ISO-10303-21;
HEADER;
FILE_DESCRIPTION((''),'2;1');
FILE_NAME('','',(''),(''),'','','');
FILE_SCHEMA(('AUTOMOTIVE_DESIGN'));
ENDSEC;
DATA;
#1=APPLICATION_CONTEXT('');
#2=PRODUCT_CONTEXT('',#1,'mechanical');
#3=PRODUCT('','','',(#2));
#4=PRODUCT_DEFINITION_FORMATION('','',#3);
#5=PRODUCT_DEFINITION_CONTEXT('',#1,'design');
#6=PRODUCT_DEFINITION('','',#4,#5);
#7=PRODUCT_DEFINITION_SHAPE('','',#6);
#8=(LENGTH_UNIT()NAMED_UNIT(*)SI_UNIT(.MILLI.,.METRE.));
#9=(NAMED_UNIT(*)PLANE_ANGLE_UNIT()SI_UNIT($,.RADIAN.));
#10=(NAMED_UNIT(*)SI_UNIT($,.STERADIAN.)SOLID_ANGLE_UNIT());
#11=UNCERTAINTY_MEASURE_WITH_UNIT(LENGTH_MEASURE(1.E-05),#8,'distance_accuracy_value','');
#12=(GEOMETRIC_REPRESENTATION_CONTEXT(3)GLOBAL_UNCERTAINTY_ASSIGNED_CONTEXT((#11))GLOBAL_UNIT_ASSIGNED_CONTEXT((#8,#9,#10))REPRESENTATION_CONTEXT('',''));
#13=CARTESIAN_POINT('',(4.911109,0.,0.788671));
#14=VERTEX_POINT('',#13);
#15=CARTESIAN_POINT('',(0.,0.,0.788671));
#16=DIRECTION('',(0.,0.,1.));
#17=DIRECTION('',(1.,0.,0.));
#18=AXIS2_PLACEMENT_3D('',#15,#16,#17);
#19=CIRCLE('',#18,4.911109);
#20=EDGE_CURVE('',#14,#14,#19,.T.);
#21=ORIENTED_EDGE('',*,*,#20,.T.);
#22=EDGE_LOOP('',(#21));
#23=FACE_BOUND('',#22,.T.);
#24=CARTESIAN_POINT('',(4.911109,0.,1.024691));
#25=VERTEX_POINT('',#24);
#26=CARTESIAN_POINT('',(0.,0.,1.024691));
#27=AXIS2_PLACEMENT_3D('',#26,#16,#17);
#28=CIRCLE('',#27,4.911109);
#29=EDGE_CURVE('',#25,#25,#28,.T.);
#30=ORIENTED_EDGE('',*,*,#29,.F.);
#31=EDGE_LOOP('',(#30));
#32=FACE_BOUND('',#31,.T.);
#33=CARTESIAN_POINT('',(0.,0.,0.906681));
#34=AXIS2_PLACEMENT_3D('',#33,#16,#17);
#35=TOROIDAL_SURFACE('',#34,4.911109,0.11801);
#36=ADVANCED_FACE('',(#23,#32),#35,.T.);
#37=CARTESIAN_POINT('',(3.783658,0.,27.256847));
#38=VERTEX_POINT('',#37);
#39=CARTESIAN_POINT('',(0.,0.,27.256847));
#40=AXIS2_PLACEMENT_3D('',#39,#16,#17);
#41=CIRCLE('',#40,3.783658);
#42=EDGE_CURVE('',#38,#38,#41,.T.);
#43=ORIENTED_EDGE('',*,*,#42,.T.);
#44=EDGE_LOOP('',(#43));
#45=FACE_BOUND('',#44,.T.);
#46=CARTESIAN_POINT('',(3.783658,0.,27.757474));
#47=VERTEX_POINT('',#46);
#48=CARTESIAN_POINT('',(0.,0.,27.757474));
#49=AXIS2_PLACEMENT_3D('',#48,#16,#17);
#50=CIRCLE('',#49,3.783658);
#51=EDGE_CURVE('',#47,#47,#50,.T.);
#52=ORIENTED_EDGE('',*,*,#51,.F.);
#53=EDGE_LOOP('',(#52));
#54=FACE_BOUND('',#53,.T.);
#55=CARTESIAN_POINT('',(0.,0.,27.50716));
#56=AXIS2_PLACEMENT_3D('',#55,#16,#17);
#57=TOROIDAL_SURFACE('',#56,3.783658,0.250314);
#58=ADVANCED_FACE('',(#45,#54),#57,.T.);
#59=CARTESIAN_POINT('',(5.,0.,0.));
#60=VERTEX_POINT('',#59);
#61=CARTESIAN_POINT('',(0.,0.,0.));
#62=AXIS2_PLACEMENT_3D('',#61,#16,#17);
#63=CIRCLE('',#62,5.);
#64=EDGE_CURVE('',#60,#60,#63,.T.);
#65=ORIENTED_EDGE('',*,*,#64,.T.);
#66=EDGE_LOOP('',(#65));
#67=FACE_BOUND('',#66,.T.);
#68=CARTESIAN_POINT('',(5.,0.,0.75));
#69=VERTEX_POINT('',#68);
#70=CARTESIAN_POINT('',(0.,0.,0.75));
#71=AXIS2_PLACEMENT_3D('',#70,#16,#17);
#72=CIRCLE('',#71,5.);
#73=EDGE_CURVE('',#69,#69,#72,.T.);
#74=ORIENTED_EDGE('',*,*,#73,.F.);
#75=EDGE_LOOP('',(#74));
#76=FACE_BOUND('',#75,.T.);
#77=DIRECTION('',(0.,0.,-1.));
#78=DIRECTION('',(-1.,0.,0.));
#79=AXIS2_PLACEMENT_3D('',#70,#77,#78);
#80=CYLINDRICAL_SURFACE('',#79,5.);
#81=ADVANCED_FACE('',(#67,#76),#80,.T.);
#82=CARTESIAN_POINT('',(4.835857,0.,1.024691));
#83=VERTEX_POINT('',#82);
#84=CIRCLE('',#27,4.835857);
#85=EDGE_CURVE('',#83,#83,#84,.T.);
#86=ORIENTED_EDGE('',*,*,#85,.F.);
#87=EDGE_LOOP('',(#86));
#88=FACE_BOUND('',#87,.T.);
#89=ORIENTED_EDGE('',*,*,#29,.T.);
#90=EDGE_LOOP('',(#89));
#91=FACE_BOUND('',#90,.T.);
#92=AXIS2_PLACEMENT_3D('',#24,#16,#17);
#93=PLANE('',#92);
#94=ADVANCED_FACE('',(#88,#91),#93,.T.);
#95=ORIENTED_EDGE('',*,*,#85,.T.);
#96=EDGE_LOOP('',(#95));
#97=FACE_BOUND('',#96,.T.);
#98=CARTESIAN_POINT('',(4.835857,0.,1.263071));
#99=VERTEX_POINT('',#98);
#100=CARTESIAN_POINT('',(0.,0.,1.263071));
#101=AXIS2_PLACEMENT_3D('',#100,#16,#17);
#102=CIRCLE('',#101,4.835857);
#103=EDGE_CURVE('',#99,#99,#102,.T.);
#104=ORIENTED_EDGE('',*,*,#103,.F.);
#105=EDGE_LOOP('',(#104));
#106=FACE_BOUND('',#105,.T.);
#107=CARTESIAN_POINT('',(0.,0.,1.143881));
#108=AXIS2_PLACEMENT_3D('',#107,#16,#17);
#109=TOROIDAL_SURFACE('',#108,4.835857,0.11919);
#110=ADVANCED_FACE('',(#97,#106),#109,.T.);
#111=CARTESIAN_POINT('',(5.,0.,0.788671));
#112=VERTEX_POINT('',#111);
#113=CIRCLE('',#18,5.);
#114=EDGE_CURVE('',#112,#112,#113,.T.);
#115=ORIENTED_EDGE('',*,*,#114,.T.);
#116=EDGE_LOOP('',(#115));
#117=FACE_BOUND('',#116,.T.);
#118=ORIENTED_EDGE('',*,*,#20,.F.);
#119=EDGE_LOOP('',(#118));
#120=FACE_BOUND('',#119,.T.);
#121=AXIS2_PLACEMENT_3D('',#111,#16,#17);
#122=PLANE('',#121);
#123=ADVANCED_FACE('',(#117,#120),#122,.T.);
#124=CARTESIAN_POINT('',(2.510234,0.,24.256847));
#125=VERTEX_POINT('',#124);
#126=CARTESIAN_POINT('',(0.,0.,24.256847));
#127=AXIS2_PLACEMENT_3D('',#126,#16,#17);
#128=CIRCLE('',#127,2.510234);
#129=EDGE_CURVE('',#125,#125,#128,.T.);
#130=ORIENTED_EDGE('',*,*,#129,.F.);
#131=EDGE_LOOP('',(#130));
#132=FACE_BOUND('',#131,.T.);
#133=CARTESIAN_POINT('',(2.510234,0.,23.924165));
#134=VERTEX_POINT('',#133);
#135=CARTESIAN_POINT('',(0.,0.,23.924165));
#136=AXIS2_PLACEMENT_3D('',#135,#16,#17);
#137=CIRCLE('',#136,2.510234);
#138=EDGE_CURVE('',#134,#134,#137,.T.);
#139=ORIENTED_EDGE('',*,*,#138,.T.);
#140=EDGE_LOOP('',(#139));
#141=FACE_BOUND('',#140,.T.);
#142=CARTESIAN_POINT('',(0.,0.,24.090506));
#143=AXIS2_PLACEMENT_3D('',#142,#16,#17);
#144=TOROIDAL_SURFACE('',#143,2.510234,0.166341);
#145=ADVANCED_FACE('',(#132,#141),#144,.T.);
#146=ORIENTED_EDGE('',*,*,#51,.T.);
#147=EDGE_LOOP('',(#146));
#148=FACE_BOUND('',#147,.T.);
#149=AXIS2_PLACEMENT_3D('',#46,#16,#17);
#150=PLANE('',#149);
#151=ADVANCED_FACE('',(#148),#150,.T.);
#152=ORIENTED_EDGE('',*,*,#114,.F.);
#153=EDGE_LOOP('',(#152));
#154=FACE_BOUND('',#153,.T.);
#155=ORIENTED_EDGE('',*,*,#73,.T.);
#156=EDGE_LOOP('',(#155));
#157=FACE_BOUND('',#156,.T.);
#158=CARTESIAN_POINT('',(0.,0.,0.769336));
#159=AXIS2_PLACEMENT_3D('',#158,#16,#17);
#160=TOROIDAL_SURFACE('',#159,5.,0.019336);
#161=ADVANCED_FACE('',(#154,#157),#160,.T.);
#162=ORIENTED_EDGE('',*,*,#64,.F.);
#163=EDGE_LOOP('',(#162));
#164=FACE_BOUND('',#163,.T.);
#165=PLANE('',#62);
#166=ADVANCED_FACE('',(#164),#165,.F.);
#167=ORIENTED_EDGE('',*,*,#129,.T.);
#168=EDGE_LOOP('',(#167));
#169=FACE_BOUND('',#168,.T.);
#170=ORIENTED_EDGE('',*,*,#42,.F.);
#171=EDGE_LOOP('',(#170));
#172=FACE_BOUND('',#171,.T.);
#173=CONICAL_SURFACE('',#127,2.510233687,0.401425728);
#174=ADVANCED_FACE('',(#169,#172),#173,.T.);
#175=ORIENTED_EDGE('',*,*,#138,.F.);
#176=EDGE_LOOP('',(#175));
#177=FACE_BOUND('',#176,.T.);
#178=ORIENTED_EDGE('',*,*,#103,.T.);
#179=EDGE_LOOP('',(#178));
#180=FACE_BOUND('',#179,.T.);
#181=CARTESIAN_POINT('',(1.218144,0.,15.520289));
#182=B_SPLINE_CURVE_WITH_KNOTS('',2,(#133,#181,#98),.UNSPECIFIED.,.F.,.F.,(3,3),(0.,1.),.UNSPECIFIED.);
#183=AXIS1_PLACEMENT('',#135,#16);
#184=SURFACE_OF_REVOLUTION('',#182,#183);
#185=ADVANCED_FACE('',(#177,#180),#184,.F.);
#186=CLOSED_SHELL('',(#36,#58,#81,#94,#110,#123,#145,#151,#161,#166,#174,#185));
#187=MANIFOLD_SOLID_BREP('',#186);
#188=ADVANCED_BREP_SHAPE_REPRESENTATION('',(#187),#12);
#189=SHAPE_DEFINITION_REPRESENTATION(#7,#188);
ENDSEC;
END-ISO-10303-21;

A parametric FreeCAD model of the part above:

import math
import FreeCAD as App
import Part
import Sketcher
Q = App.Units.Quantity


def faces_at(feature, points):
    """Names of the faces that lie closest to the given points."""
    faces = feature.Shape.Faces
    near = lambda p: min(range(len(faces)), key=lambda i: faces[i].distToShape(Part.Vertex(*p))[0])
    return sorted({f"Face{near(p) + 1}" for p in points})

doc = App.newDocument("Part")
body = doc.addObject("PartDesign::Body", "Body")

# Sketch on XY plane
sketch1 = doc.addObject("Sketcher::SketchObject", "Sketch")
body.addObject(sketch1)
sketch1.AttachmentSupport = (doc.XY_Plane, [""])
sketch1.MapMode = "FlatFace"
sketch1.addGeometry(Part.Circle(App.Vector(0, 0, 0), App.Vector(0, 0, 1), 5), False)
sketch1.addConstraint([
    Sketcher.Constraint("Coincident", 0, 3, -1, 1),
    Sketcher.Constraint("Diameter", 0, Q("10 mm")),
])
pad1 = doc.addObject("PartDesign::Pad", "Pad")
body.addObject(pad1)
pad1.Profile = sketch1
pad1.Length = 0.75

# Sketch on XZ plane
sketch2 = doc.addObject("Sketcher::SketchObject", "Sketch001")
body.addObject(sketch2)
sketch2.AttachmentSupport = (doc.XZ_Plane, [""])
sketch2.MapMode = "FlatFace"
sketch2.addGeometry([
    Part.LineSegment(App.Vector(5, 0.75, 0), App.Vector(0, 0.75, 0)),
    Part.LineSegment(App.Vector(0, 0.75, 0), App.Vector(0, 0.789, 0)),
    Part.LineSegment(App.Vector(0, 0.789, 0), App.Vector(5, 0.789, 0)),
    Part.ArcOfCircle(Part.Circle(App.Vector(5, 0.769, 0), App.Vector(0, 0, 1), 0.019), math.radians(-90), math.radians(90)),
], False)
sketch2.addConstraint([
    Sketcher.Constraint("Coincident", 0, 2, 1, 1),
    Sketcher.Constraint("Coincident", 1, 2, 2, 1),
    Sketcher.Constraint("Tangent", 2, 2, 3, 2),
    Sketcher.Constraint("Tangent", 3, 1, 0, 1),
    Sketcher.Constraint("Horizontal", 0),
    Sketcher.Constraint("Vertical", 1),
    Sketcher.Constraint("Horizontal", 2),
    Sketcher.Constraint("PointOnObject", 0, 2, -2),
    Sketcher.Constraint("DistanceX", 0, 2, 0, 1, Q("5 mm")),
    Sketcher.Constraint("DistanceY", -1, 1, 0, 2, Q("0.75 mm")),
    Sketcher.Constraint("Radius", 3, Q("0.019336 mm")),
])
revolution = doc.addObject("PartDesign::Revolution", "Revolution")
body.addObject(revolution)
revolution.Profile = sketch2
revolution.ReferenceAxis = (sketch2, ["V_Axis"])
revolution.Angle = 360

# Sketch on XZ plane
sketch3 = doc.addObject("Sketcher::SketchObject", "Sketch002")
body.addObject(sketch3)
sketch3.AttachmentSupport = (doc.XZ_Plane, [""])
sketch3.MapMode = "FlatFace"
sketch3.addGeometry([
    Part.LineSegment(App.Vector(4.91, 0.79, 0), App.Vector(0, 0.79, 0)),
    Part.LineSegment(App.Vector(0, 0.79, 0), App.Vector(0, 1.02, 0)),
    Part.LineSegment(App.Vector(0, 1.02, 0), App.Vector(4.91, 1.02, 0)),
    Part.ArcOfCircle(Part.Circle(App.Vector(4.91, 0.91, 0), App.Vector(0, 0, 1), 0.12), math.radians(-90), math.radians(90)),
], False)
sketch3.addConstraint([
    Sketcher.Constraint("Coincident", 0, 2, 1, 1),
    Sketcher.Constraint("Coincident", 1, 2, 2, 1),
    Sketcher.Constraint("Tangent", 2, 2, 3, 2),
    Sketcher.Constraint("Tangent", 3, 1, 0, 1),
    Sketcher.Constraint("Horizontal", 0),
    Sketcher.Constraint("Vertical", 1),
    Sketcher.Constraint("Horizontal", 2),
    Sketcher.Constraint("PointOnObject", 0, 2, -2),
    Sketcher.Constraint("Radius", 3, Q("0.11801 mm")),
    Sketcher.Constraint("DistanceX", 0, 2, 0, 1, Q("4.911109 mm")),
    Sketcher.Constraint("DistanceY", -1, 1, 3, 3, Q("0.906681 mm")),
])
revolution2 = doc.addObject("PartDesign::Revolution", "Revolution001")
body.addObject(revolution2)
revolution2.Profile = sketch3
revolution2.ReferenceAxis = (sketch3, ["V_Axis"])
revolution2.Angle = 360

# Sketch on XZ plane
sketch4 = doc.addObject("Sketcher::SketchObject", "Sketch003")
body.addObject(sketch4)
sketch4.AttachmentSupport = (doc.XZ_Plane, [""])
sketch4.MapMode = "FlatFace"
sketch4.addGeometry([
    Part.LineSegment(App.Vector(4.84, 1.02, 0), App.Vector(0, 1.02, 0)),
    Part.LineSegment(App.Vector(0, 1.02, 0), App.Vector(0, 1.26, 0)),
    Part.LineSegment(App.Vector(0, 1.26, 0), App.Vector(4.84, 1.26, 0)),
    Part.ArcOfCircle(Part.Circle(App.Vector(4.84, 1.14, 0), App.Vector(0, 0, 1), 0.12), math.radians(-90), math.radians(90)),
], False)
sketch4.addConstraint([
    Sketcher.Constraint("Coincident", 0, 2, 1, 1),
    Sketcher.Constraint("Coincident", 1, 2, 2, 1),
    Sketcher.Constraint("Tangent", 2, 2, 3, 2),
    Sketcher.Constraint("Tangent", 3, 1, 0, 1),
    Sketcher.Constraint("Horizontal", 0),
    Sketcher.Constraint("Vertical", 1),
    Sketcher.Constraint("Horizontal", 2),
    Sketcher.Constraint("PointOnObject", 0, 2, -2),
    Sketcher.Constraint("Radius", 3, Q("0.11919 mm")),
    Sketcher.Constraint("DistanceX", 0, 2, 0, 1, Q("4.835857 mm")),
    Sketcher.Constraint("DistanceY", -1, 1, 3, 3, Q("1.143881 mm")),
])
revolution3 = doc.addObject("PartDesign::Revolution", "Revolution002")
body.addObject(revolution3)
revolution3.Profile = sketch4
revolution3.ReferenceAxis = (sketch4, ["V_Axis"])
revolution3.Angle = 360

# Sketch on XZ plane
sketch5 = doc.addObject("Sketcher::SketchObject", "Sketch004")
body.addObject(sketch5)
sketch5.AttachmentSupport = (doc.XZ_Plane, [""])
sketch5.MapMode = "FlatFace"
sketch5.addGeometry([
    Part.LineSegment(App.Vector(0, 23.924165, 0), App.Vector(2.510234, 23.924165, 0)),
    Part.BSplineCurve([App.Vector(4.835857, 1.263071, 0), App.Vector(1.218144, 15.520289, 0), App.Vector(2.510234, 23.924165, 0)], [3, 3], [0, 1], False, 2, [1, 1, 1], False),
    Part.LineSegment(App.Vector(4.835857, 1.263071, 0), App.Vector(0, 1.263071, 0)),
    Part.LineSegment(App.Vector(0, 1.263071, 0), App.Vector(0, 23.924165, 0)),
], False)
sketch5.addConstraint([
    Sketcher.Constraint("Block", 1),
    Sketcher.Constraint("Coincident", 0, 2, 1, 2),
    Sketcher.Constraint("Coincident", 1, 1, 2, 1),
    Sketcher.Constraint("Coincident", 2, 2, 3, 1),
    Sketcher.Constraint("Coincident", 3, 2, 0, 1),
    Sketcher.Constraint("Horizontal", 0),
    Sketcher.Constraint("Horizontal", 2),
    Sketcher.Constraint("Vertical", 3),
    Sketcher.Constraint("PointOnObject", 2, 2, -2),
])
revolution4 = doc.addObject("PartDesign::Revolution", "Revolution003")
body.addObject(revolution4)
revolution4.Profile = sketch5
revolution4.ReferenceAxis = (sketch5, ["V_Axis"])
revolution4.Angle = 360

# Sketch on XZ plane
sketch6 = doc.addObject("Sketcher::SketchObject", "Sketch005")
body.addObject(sketch6)
sketch6.AttachmentSupport = (doc.XZ_Plane, [""])
sketch6.MapMode = "FlatFace"
sketch6.addGeometry([
    Part.LineSegment(App.Vector(2.51, 23.92, 0), App.Vector(0, 23.92, 0)),
    Part.LineSegment(App.Vector(0, 23.92, 0), App.Vector(0, 24.26, 0)),
    Part.LineSegment(App.Vector(0, 24.26, 0), App.Vector(2.51, 24.26, 0)),
    Part.ArcOfCircle(Part.Circle(App.Vector(2.51, 24.09, 0), App.Vector(0, 0, 1), 0.17), math.radians(-90), math.radians(90)),
], False)
sketch6.addConstraint([
    Sketcher.Constraint("Coincident", 0, 2, 1, 1),
    Sketcher.Constraint("Coincident", 1, 2, 2, 1),
    Sketcher.Constraint("Tangent", 2, 2, 3, 2),
    Sketcher.Constraint("Tangent", 3, 1, 0, 1),
    Sketcher.Constraint("Horizontal", 0),
    Sketcher.Constraint("Vertical", 1),
    Sketcher.Constraint("Horizontal", 2),
    Sketcher.Constraint("PointOnObject", 0, 2, -2),
    Sketcher.Constraint("Radius", 3, Q("0.166341 mm")),
    Sketcher.Constraint("DistanceX", 0, 2, 0, 1, Q("2.510234 mm")),
    Sketcher.Constraint("DistanceY", -1, 1, 3, 3, Q("24.090506 mm")),
])
revolution5 = doc.addObject("PartDesign::Revolution", "Revolution004")
body.addObject(revolution5)
revolution5.Profile = sketch6
revolution5.ReferenceAxis = (sketch6, ["V_Axis"])
revolution5.Angle = 360
body2 = doc.addObject("PartDesign::Body", "Body001")

# Sketch on XY plane
sketch7 = doc.addObject("Sketcher::SketchObject", "Sketch006")
body2.addObject(sketch7)
sketch7.AttachmentSupport = (doc.getObject("XY_Plane001"), [""])
sketch7.MapMode = "FlatFace"
sketch7.AttachmentOffset = App.Placement(App.Vector(0, 0, 24.256847), App.Rotation())
sketch7.addGeometry(Part.Circle(App.Vector(0, 0, 0), App.Vector(0, 0, 1), 2.5), False)
sketch7.addConstraint([
    Sketcher.Constraint("Coincident", 0, 3, -1, 1),
    Sketcher.Constraint("Diameter", 0, Q("5.020467 mm")),
])
pad2 = doc.addObject("PartDesign::Pad", "Pad001")
body2.addObject(pad2)
pad2.Profile = sketch7
pad2.Length = 3
doc.recompute()

datumplane = doc.addObject("PartDesign::Plane", "DatumPlane")
body2.addObject(datumplane)
datumplane.AttachmentSupport = (doc.getObject("XY_Plane001"), [""])
datumplane.MapMode = "FlatFace"
datumplane.AttachmentOffset = App.Placement(App.Vector(0, 0, 24.256847), App.Rotation())
draft = doc.addObject("PartDesign::Draft", "Draft")
body2.addObject(draft)
draft.Base = (pad2, faces_at(pad2, [(-2.51, 0, 25.757)]))
draft.NeutralPlane = (datumplane, [""])
draft.Angle = 23
draft.Reversed = True
doc.recompute()

boolean = doc.addObject("PartDesign::Boolean", "Boolean")
body.addObject(boolean)
boolean.Type = "Fuse"
boolean.addObjects([body2])

# Sketch on XZ plane
sketch8 = doc.addObject("Sketcher::SketchObject", "Sketch007")
body.addObject(sketch8)
sketch8.AttachmentSupport = (doc.XZ_Plane, [""])
sketch8.MapMode = "FlatFace"
sketch8.addGeometry([
    Part.LineSegment(App.Vector(3.78, 27.26, 0), App.Vector(0, 27.26, 0)),
    Part.LineSegment(App.Vector(0, 27.26, 0), App.Vector(0, 27.76, 0)),
    Part.LineSegment(App.Vector(0, 27.76, 0), App.Vector(3.78, 27.76, 0)),
    Part.ArcOfCircle(Part.Circle(App.Vector(3.78, 27.51, 0), App.Vector(0, 0, 1), 0.25), math.radians(-90), math.radians(90)),
], False)
sketch8.addConstraint([
    Sketcher.Constraint("Coincident", 0, 2, 1, 1),
    Sketcher.Constraint("Coincident", 1, 2, 2, 1),
    Sketcher.Constraint("Tangent", 2, 2, 3, 2),
    Sketcher.Constraint("Tangent", 3, 1, 0, 1),
    Sketcher.Constraint("Horizontal", 0),
    Sketcher.Constraint("Vertical", 1),
    Sketcher.Constraint("Horizontal", 2),
    Sketcher.Constraint("PointOnObject", 0, 2, -2),
    Sketcher.Constraint("Radius", 3, Q("0.250314 mm")),
    Sketcher.Constraint("DistanceX", 0, 2, 0, 1, Q("3.783658 mm")),
    Sketcher.Constraint("DistanceY", -1, 1, 3, 3, Q("27.50716 mm")),
])
revolution6 = doc.addObject("PartDesign::Revolution", "Revolution005")
body.addObject(revolution6)
revolution6.Profile = sketch8
revolution6.ReferenceAxis = (sketch8, ["V_Axis"])
revolution6.Angle = 360

doc.recompute()
